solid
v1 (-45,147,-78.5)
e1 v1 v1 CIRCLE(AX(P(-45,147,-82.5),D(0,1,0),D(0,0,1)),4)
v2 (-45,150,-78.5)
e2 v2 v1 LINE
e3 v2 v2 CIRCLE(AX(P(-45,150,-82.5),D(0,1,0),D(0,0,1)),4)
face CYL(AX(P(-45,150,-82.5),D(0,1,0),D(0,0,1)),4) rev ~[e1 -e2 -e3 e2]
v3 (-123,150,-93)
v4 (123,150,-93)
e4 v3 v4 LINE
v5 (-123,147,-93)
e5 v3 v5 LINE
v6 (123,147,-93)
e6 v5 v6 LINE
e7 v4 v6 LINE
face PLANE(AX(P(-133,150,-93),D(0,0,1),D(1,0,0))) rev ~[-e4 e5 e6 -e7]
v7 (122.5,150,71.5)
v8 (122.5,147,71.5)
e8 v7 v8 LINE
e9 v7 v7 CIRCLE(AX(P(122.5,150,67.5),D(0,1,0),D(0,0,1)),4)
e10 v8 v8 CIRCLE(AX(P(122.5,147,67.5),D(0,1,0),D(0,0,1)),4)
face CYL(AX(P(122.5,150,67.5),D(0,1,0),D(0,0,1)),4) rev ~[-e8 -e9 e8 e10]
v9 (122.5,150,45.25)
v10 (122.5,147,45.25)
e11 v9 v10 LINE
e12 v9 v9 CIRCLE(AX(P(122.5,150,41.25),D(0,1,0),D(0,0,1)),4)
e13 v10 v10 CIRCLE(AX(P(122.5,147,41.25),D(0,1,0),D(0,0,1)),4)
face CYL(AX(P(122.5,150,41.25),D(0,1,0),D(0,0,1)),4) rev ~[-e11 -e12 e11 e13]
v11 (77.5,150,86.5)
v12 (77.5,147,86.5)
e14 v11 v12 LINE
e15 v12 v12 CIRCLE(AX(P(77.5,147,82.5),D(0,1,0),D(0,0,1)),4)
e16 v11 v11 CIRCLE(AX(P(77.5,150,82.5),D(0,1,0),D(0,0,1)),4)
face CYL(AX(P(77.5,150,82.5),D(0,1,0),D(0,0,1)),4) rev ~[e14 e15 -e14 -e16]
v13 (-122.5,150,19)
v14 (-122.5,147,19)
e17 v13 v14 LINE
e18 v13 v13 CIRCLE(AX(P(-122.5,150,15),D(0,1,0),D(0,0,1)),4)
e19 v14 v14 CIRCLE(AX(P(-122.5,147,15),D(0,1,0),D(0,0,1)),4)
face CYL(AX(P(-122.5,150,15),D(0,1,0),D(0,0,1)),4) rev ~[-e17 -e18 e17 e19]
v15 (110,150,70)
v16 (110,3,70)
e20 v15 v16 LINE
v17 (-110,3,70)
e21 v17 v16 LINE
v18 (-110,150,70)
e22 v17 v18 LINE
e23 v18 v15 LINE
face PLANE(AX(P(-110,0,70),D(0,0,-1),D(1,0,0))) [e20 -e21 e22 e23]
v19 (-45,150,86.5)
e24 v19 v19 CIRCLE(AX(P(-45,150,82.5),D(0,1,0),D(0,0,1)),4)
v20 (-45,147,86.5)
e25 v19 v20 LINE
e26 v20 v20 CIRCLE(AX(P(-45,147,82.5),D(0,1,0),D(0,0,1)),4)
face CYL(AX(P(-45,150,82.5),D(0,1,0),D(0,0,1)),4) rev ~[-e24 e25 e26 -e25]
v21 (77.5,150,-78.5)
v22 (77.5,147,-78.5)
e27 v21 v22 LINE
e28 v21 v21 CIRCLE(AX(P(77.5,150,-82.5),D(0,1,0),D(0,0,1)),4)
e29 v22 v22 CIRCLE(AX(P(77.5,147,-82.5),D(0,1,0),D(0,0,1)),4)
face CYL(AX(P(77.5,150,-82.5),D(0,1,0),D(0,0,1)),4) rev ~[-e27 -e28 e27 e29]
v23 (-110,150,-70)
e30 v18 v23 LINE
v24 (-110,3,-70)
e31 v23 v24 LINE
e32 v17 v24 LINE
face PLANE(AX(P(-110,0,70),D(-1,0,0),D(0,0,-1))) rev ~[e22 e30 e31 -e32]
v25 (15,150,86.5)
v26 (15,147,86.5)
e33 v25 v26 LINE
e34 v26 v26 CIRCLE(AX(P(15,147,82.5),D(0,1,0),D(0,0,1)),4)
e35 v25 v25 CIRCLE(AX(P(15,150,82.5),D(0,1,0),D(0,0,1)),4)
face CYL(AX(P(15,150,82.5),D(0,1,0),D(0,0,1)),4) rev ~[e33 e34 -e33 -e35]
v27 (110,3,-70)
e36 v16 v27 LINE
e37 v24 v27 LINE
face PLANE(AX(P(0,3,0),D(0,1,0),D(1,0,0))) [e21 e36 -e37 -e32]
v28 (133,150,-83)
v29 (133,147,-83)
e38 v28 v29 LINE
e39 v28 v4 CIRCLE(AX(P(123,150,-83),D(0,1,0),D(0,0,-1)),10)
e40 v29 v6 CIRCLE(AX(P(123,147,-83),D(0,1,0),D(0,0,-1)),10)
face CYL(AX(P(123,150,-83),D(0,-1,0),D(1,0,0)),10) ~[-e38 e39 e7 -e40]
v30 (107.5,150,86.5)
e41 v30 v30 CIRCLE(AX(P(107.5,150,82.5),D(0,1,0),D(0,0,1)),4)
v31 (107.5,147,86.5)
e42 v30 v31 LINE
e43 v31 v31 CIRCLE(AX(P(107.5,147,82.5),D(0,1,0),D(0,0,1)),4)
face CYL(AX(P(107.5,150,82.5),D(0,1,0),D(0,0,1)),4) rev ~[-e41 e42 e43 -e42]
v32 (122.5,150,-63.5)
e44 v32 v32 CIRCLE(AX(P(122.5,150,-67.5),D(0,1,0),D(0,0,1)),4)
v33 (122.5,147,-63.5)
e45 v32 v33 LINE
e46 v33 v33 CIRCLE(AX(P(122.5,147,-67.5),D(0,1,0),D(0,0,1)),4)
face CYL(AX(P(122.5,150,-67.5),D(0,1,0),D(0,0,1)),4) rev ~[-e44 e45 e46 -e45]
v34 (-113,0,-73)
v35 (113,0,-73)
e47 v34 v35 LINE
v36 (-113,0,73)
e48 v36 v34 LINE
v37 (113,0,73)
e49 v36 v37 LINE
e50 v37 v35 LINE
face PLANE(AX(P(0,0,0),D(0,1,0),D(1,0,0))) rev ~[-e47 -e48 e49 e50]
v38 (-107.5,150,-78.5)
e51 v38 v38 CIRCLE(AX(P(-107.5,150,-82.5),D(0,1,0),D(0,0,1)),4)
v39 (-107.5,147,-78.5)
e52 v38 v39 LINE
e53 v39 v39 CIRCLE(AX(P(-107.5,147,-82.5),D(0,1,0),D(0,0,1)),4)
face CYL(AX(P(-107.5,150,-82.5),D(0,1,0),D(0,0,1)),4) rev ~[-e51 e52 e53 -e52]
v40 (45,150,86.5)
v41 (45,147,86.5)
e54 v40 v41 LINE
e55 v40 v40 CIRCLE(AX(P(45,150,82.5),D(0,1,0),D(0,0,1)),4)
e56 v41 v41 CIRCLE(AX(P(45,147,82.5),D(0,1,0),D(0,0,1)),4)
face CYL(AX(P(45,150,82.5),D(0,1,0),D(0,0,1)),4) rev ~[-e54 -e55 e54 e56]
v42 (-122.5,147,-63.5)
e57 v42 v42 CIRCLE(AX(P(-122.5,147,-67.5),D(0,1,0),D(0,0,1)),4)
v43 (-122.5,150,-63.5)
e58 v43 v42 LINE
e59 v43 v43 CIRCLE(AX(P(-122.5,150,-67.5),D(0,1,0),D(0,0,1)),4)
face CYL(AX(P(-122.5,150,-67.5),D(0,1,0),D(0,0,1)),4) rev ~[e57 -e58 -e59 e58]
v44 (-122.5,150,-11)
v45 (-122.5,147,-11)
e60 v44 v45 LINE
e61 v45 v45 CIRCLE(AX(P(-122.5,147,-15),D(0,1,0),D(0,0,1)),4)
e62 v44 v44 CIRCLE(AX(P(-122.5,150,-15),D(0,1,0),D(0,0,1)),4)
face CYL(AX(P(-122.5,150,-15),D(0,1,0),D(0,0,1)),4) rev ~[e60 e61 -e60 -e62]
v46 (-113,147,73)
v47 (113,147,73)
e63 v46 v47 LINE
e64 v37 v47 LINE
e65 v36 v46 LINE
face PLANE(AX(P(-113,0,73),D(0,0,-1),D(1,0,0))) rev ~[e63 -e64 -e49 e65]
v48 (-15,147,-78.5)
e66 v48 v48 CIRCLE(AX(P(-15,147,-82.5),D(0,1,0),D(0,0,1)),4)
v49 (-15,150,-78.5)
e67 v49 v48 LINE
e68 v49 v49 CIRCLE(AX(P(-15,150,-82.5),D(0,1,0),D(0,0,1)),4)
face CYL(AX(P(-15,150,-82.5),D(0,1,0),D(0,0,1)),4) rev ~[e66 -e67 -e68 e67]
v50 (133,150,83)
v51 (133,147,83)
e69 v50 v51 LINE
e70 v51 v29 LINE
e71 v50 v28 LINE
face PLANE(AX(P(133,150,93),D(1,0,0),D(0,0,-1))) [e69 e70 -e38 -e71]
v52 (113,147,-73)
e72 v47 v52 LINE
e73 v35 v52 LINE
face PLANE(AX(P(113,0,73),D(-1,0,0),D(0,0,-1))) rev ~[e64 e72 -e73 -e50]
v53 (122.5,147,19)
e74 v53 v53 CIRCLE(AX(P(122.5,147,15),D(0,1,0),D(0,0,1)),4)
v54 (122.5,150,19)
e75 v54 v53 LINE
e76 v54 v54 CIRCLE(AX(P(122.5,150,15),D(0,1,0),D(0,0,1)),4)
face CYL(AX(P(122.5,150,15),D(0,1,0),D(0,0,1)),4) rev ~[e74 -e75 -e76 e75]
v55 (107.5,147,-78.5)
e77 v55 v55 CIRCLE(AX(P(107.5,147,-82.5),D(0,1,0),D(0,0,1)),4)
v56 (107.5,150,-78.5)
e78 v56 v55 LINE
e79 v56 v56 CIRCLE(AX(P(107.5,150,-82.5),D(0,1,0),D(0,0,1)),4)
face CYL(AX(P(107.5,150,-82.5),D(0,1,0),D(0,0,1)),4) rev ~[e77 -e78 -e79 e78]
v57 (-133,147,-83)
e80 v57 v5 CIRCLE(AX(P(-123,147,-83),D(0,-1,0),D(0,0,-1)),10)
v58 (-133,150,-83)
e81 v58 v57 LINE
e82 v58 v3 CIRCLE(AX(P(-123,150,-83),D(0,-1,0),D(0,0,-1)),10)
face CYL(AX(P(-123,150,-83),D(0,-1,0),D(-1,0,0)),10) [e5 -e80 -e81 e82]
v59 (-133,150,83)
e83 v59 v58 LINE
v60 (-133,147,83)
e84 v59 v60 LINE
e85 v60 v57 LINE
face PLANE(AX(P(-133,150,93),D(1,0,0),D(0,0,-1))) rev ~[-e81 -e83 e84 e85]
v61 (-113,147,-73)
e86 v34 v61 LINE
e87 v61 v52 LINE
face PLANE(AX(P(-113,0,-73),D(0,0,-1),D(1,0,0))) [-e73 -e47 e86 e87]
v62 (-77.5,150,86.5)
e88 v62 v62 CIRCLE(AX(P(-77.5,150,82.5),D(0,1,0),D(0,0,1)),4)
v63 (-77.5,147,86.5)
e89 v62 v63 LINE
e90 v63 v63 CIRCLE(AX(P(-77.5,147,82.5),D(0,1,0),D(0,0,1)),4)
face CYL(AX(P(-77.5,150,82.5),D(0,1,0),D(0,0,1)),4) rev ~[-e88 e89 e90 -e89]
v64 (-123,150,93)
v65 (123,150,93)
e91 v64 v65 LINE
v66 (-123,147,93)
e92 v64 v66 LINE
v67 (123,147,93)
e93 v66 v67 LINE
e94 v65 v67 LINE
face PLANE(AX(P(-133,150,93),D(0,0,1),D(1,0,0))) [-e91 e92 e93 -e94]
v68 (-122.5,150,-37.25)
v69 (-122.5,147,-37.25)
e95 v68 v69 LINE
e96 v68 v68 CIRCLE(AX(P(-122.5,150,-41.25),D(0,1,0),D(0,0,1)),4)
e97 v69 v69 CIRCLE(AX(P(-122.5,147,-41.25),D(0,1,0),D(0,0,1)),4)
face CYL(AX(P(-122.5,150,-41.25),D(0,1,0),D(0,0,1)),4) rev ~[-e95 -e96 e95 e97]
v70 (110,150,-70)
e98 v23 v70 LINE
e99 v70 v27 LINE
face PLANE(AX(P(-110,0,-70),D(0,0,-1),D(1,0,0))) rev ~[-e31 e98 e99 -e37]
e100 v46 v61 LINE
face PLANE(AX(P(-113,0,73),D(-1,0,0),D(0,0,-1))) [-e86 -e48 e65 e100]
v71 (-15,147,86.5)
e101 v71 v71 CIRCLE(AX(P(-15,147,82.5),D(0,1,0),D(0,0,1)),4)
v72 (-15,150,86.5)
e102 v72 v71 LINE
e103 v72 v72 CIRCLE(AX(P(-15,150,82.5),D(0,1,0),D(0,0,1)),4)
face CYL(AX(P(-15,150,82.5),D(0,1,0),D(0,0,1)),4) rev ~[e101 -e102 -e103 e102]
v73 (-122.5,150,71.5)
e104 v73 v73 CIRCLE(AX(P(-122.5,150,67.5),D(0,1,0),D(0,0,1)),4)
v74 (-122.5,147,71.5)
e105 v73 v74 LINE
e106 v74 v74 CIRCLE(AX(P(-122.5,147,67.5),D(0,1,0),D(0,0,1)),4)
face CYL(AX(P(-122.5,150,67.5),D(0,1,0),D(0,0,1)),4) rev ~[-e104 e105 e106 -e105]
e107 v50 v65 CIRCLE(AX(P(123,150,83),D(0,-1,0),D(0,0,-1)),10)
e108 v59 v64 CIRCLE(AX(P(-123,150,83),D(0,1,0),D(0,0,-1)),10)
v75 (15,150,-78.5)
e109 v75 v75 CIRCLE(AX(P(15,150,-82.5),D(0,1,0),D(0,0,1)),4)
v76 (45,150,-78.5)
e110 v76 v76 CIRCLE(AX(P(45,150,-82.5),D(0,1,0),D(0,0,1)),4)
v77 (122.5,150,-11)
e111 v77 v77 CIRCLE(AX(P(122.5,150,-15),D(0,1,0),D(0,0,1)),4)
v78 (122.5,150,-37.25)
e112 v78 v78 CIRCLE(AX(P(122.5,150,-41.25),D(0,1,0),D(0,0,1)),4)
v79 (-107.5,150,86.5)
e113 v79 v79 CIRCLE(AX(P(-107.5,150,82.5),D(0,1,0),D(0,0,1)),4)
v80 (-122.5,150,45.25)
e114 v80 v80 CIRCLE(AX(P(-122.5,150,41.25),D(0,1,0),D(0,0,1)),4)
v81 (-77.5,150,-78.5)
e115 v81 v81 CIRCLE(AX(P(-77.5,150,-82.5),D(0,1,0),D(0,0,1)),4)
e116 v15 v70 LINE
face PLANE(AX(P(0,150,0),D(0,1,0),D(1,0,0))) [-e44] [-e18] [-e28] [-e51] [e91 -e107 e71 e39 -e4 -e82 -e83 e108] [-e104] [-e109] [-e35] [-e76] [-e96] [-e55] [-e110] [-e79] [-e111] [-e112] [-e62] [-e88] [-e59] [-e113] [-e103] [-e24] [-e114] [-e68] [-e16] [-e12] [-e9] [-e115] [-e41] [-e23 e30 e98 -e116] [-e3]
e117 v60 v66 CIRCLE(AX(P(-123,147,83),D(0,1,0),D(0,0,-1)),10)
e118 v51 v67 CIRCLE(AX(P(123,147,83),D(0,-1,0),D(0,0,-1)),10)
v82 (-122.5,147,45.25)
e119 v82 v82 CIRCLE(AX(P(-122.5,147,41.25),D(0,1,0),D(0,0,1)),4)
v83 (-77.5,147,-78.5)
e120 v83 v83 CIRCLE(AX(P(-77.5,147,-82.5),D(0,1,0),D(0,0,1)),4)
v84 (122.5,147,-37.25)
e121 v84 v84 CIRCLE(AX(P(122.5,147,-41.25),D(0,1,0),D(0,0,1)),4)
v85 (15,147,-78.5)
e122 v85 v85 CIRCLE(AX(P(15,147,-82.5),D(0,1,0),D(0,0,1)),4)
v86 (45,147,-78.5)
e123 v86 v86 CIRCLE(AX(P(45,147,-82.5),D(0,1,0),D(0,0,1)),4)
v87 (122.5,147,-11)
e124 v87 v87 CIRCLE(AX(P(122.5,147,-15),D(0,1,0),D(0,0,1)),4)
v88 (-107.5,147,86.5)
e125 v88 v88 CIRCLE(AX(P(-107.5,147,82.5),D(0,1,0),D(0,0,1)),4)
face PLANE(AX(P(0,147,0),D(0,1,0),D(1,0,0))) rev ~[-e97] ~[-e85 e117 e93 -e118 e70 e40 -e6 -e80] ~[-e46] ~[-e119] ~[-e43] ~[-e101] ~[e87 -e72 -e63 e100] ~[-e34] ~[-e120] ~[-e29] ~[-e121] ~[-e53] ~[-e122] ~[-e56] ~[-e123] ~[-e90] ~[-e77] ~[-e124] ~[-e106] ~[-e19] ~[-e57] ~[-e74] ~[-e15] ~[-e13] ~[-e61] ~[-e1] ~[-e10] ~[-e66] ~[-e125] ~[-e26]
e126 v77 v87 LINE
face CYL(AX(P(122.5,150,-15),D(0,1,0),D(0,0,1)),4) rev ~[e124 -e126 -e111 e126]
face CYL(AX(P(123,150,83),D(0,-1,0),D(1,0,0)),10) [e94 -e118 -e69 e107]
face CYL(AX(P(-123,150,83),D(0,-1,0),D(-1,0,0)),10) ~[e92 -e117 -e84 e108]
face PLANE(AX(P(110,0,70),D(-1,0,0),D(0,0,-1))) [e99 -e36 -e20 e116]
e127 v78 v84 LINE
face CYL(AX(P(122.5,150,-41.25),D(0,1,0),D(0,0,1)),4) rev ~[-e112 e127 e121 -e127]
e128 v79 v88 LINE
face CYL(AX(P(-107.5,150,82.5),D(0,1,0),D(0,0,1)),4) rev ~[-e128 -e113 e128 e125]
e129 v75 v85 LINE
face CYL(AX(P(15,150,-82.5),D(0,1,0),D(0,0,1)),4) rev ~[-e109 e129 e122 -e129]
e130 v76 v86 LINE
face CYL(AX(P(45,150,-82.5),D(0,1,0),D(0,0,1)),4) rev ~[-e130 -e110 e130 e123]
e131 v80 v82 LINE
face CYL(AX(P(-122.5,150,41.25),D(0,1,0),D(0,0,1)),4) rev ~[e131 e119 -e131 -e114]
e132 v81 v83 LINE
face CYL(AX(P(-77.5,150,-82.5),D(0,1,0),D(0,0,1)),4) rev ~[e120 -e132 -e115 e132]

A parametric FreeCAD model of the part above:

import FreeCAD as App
import Part
import Sketcher
from FreeCAD import Vector
Q = App.Units.Quantity


def edges_at(feature, points):
    """Names of the edges that pass closest to the given points."""
    edges = feature.Shape.Edges
    near = lambda p: min(range(len(edges)), key=lambda i: edges[i].distToShape(Part.Vertex(*p))[0])
    return sorted({f"Edge{near(p) + 1}" for p in points})

doc = App.newDocument("Part")
body = doc.addObject("PartDesign::Body", "Body")

sketch1 = body.newObject("Sketcher::SketchObject", "Sketch")
sketch1.AttachmentSupport = (doc.getObject("XZ_Plane"), [""])
sketch1.MapMode = "FlatFace"
sketch1.addGeometry([
    Part.LineSegment(Vector(-113, -73, 0), Vector(-113, 73, 0)),
    Part.LineSegment(Vector(-113, 73, 0), Vector(113, 73, 0)),
    Part.LineSegment(Vector(113, 73, 0), Vector(113, -73, 0)),
    Part.LineSegment(Vector(113, -73, 0), Vector(-113, -73, 0)),
    Part.LineSegment(Vector(110, 70, 0), Vector(-110, 70, 0)),
    Part.LineSegment(Vector(-110, 70, 0), Vector(-110, -70, 0)),
    Part.LineSegment(Vector(-110, -70, 0), Vector(110, -70, 0)),
    Part.LineSegment(Vector(110, -70, 0), Vector(110, 70, 0)),
], False)
sketch1.addConstraint([
    Sketcher.Constraint("Coincident", 0, 2, 1, 1),
    Sketcher.Constraint("Coincident", 1, 2, 2, 1),
    Sketcher.Constraint("Coincident", 2, 2, 3, 1),
    Sketcher.Constraint("Coincident", 3, 2, 0, 1),
    Sketcher.Constraint("Coincident", 4, 2, 5, 1),
    Sketcher.Constraint("Coincident", 5, 2, 6, 1),
    Sketcher.Constraint("Coincident", 6, 2, 7, 1),
    Sketcher.Constraint("Coincident", 7, 2, 4, 1),
    Sketcher.Constraint("Vertical", 0),
    Sketcher.Constraint("Horizontal", 1),
    Sketcher.Constraint("Vertical", 2),
    Sketcher.Constraint("Horizontal", 3),
    Sketcher.Constraint("Horizontal", 4),
    Sketcher.Constraint("Vertical", 5),
    Sketcher.Constraint("Horizontal", 6),
    Sketcher.Constraint("Vertical", 7),
    Sketcher.Constraint("Symmetric", 0, 2, 2, 2, -1, 1),
    Sketcher.Constraint("Symmetric", 4, 2, 6, 2, -1, 1),
    Sketcher.Constraint("DistanceX", 1, 1, 1, 2, Q("226 mm")),
    Sketcher.Constraint("DistanceX", 4, 2, 4, 1, Q("220 mm")),
    Sketcher.Constraint("DistanceY", 0, 1, 0, 2, Q("146 mm")),
    Sketcher.Constraint("DistanceY", 5, 2, 5, 1, Q("140 mm")),
])
pad1 = body.newObject("PartDesign::Pad", "Pad")
pad1.Profile = sketch1
pad1.Length = 150
pad1.Reversed = True

sketch2 = body.newObject("Sketcher::SketchObject", "Sketch001")
sketch2.AttachmentSupport = (doc.getObject("XZ_Plane"), [""])
sketch2.MapMode = "FlatFace"
sketch2.addGeometry([
    Part.LineSegment(Vector(-110, -70, 0), Vector(-110, 70, 0)),
    Part.LineSegment(Vector(-110, 70, 0), Vector(110, 70, 0)),
    Part.LineSegment(Vector(110, 70, 0), Vector(110, -70, 0)),
    Part.LineSegment(Vector(110, -70, 0), Vector(-110, -70, 0)),
], False)
sketch2.addConstraint([
    Sketcher.Constraint("Coincident", 0, 2, 1, 1),
    Sketcher.Constraint("Coincident", 1, 2, 2, 1),
    Sketcher.Constraint("Coincident", 2, 2, 3, 1),
    Sketcher.Constraint("Coincident", 3, 2, 0, 1),
    Sketcher.Constraint("Vertical", 0),
    Sketcher.Constraint("Horizontal", 1),
    Sketcher.Constraint("Vertical", 2),
    Sketcher.Constraint("Horizontal", 3),
    Sketcher.Constraint("Symmetric", 0, 2, 2, 2, -1, 1),
    Sketcher.Constraint("DistanceX", 1, 1, 1, 2, Q("220 mm")),
    Sketcher.Constraint("DistanceY", 0, 1, 0, 2, Q("140 mm")),
])
pad2 = body.newObject("PartDesign::Pad", "Pad001")
pad2.Profile = sketch2
pad2.Length = 3
pad2.Reversed = True

sketch3 = body.newObject("Sketcher::SketchObject", "Sketch002")
sketch3.AttachmentSupport = (doc.getObject("XZ_Plane"), [""])
sketch3.MapMode = "FlatFace"
sketch3.AttachmentOffset = App.Placement(Vector(0, 0, -150), App.Rotation())
sketch3.addGeometry([
    Part.LineSegment(Vector(-133, -93, 0), Vector(-133, 93, 0)),
    Part.LineSegment(Vector(-133, 93, 0), Vector(133, 93, 0)),
    Part.LineSegment(Vector(133, 93, 0), Vector(133, -93, 0)),
    Part.LineSegment(Vector(133, -93, 0), Vector(-133, -93, 0)),
    Part.LineSegment(Vector(110, 70, 0), Vector(-110, 70, 0)),
    Part.LineSegment(Vector(-110, 70, 0), Vector(-110, -70, 0)),
    Part.LineSegment(Vector(-110, -70, 0), Vector(110, -70, 0)),
    Part.LineSegment(Vector(110, -70, 0), Vector(110, 70, 0)),
], False)
sketch3.addConstraint([
    Sketcher.Constraint("Coincident", 0, 2, 1, 1),
    Sketcher.Constraint("Coincident", 1, 2, 2, 1),
    Sketcher.Constraint("Coincident", 2, 2, 3, 1),
    Sketcher.Constraint("Coincident", 3, 2, 0, 1),
    Sketcher.Constraint("Coincident", 4, 2, 5, 1),
    Sketcher.Constraint("Coincident", 5, 2, 6, 1),
    Sketcher.Constraint("Coincident", 6, 2, 7, 1),
    Sketcher.Constraint("Coincident", 7, 2, 4, 1),
    Sketcher.Constraint("Vertical", 0),
    Sketcher.Constraint("Horizontal", 1),
    Sketcher.Constraint("Vertical", 2),
    Sketcher.Constraint("Horizontal", 3),
    Sketcher.Constraint("Horizontal", 4),
    Sketcher.Constraint("Vertical", 5),
    Sketcher.Constraint("Horizontal", 6),
    Sketcher.Constraint("Vertical", 7),
    Sketcher.Constraint("Symmetric", 0, 2, 2, 2, -1, 1),
    Sketcher.Constraint("Symmetric", 4, 2, 6, 2, -1, 1),
    Sketcher.Constraint("DistanceX", 1, 1, 1, 2, Q("266 mm")),
    Sketcher.Constraint("DistanceX", 4, 2, 4, 1, Q("220 mm")),
    Sketcher.Constraint("DistanceY", 0, 1, 0, 2, Q("186 mm")),
    Sketcher.Constraint("DistanceY", 5, 2, 5, 1, Q("140 mm")),
])
pad3 = body.newObject("PartDesign::Pad", "Pad002")
pad3.Profile = sketch3
pad3.Length = 3
doc.recompute()

fillet = body.newObject("PartDesign::Fillet", "Fillet")
fillet.Base = (pad3, edges_at(pad3, [
    (-133, 148.5, 93),
    (-133, 148.5, -93),
    (133, 148.5, -93),
    (133, 148.5, 93),
]))
fillet.Radius = 10

sketch4 = body.newObject("Sketcher::SketchObject", "Sketch003")
sketch4.AttachmentSupport = (doc.getObject("XZ_Plane"), [""])
sketch4.MapMode = "FlatFace"
sketch4.AttachmentOffset = App.Placement(Vector(0, 0, -150), App.Rotation())
sketch4.addGeometry([
    Part.Circle(Vector(-122.5, 15, 0), Vector(0, 0, 1), 4),
    Part.Circle(Vector(-122.5, 41.2, 0), Vector(0, 0, 1), 4),
    Part.Circle(Vector(-122.5, 67.5, 0), Vector(0, 0, 1), 4),
    Part.Circle(Vector(-107.5, 82.5, 0), Vector(0, 0, 1), 4),
    Part.Circle(Vector(-77.5, 82.5, 0), Vector(0, 0, 1), 4),
    Part.Circle(Vector(-45, 82.5, 0), Vector(0, 0, 1), 4),
    Part.Circle(Vector(-15, 82.5, 0), Vector(0, 0, 1), 4),
    Part.Circle(Vector(-45, -82.5, 0), Vector(0, 0, 1), 4),
    Part.Circle(Vector(-15, -82.5, 0), Vector(0, 0, 1), 4),
    Part.Circle(Vector(-77.5, -82.5, 0), Vector(0, 0, 1), 4),
    Part.Circle(Vector(-107.5, -82.5, 0), Vector(0, 0, 1), 4),
    Part.Circle(Vector(-122.5, -67.5, 0), Vector(0, 0, 1), 4),
    Part.Circle(Vector(-122.5, -41.2, 0), Vector(0, 0, 1), 4),
    Part.Circle(Vector(-122.5, -15, 0), Vector(0, 0, 1), 4),
    Part.Circle(Vector(15, 82.5, 0), Vector(0, 0, 1), 4),
    Part.Circle(Vector(45, 82.5, 0), Vector(0, 0, 1), 4),
    Part.Circle(Vector(107.5, 82.5, 0), Vector(0, 0, 1), 4),
    Part.Circle(Vector(122.5, 67.5, 0), Vector(0, 0, 1), 4),
    Part.Circle(Vector(122.5, 41.2, 0), Vector(0, 0, 1), 4),
    Part.Circle(Vector(122.5, 15, 0), Vector(0, 0, 1), 4),
    Part.Circle(Vector(122.5, -15, 0), Vector(0, 0, 1), 4),
    Part.Circle(Vector(122.5, -41.2, 0), Vector(0, 0, 1), 4),
    Part.Circle(Vector(122.5, -67.5, 0), Vector(0, 0, 1), 4),
    Part.Circle(Vector(107.5, -82.5, 0), Vector(0, 0, 1), 4),
    Part.Circle(Vector(77.5, -82.5, 0), Vector(0, 0, 1), 4),
    Part.Circle(Vector(45, -82.5, 0), Vector(0, 0, 1), 4),
    Part.Circle(Vector(15, -82.5, 0), Vector(0, 0, 1), 4),
    Part.Circle(Vector(77.5, 82.5, 0), Vector(0, 0, 1), 4),
], False)
sketch4.addConstraint([
    Sketcher.Constraint("Equal", 0, 1),
    Sketcher.Constraint("Equal", 1, 2),
    Sketcher.Constraint("Equal", 2, 3),
    Sketcher.Constraint("Equal", 3, 4),
    Sketcher.Constraint("Equal", 4, 5),
    Sketcher.Constraint("Equal", 5, 6),
    Sketcher.Constraint("Equal", 6, 7),
    Sketcher.Constraint("Equal", 7, 8),
    Sketcher.Constraint("Equal", 8, 9),
    Sketcher.Constraint("Equal", 9, 10),
    Sketcher.Constraint("Equal", 10, 11),
    Sketcher.Constraint("Equal", 11, 12),
    Sketcher.Constraint("Equal", 12, 13),
    Sketcher.Constraint("Equal", 13, 14),
    Sketcher.Constraint("Equal", 14, 15),
    Sketcher.Constraint("Equal", 15, 16),
    Sketcher.Constraint("Equal", 16, 17),
    Sketcher.Constraint("Equal", 17, 18),
    Sketcher.Constraint("Equal", 18, 19),
    Sketcher.Constraint("Equal", 19, 20),
    Sketcher.Constraint("Equal", 20, 21),
    Sketcher.Constraint("Equal", 21, 22),
    Sketcher.Constraint("Equal", 22, 23),
    Sketcher.Constraint("Equal", 23, 24),
    Sketcher.Constraint("Equal", 24, 25),
    Sketcher.Constraint("Equal", 25, 26),
    Sketcher.Constraint("Equal", 26, 27),
    Sketcher.Constraint("Symmetric", 8, 3, 14, 3, -1, 1),
    Sketcher.Constraint("Symmetric", 7, 3, 15, 3, -1, 1),
    Sketcher.Constraint("Symmetric", 10, 3, 16, 3, -1, 1),
    Sketcher.Constraint("Symmetric", 11, 3, 17, 3, -1, 1),
    Sketcher.Constraint("Symmetric", 12, 3, 18, 3, -1, 1),
    Sketcher.Constraint("Symmetric", 13, 3, 19, 3, -1, 1),
    Sketcher.Constraint("Symmetric", 0, 3, 20, 3, -1, 1),
    Sketcher.Constraint("Symmetric", 1, 3, 21, 3, -1, 1),
    Sketcher.Constraint("Symmetric", 2, 3, 22, 3, -1, 1),
    Sketcher.Constraint("Symmetric", 3, 3, 23, 3, -1, 1),
    Sketcher.Constraint("Symmetric", 4, 3, 24, 3, -1, 1),
    Sketcher.Constraint("Symmetric", 5, 3, 25, 3, -1, 1),
    Sketcher.Constraint("Symmetric", 6, 3, 26, 3, -1, 1),
    Sketcher.Constraint("Symmetric", 9, 3, 27, 3, -1, 1),
    Sketcher.Constraint("Symmetric", 6, 3, 14, 3, -2),
    Sketcher.Constraint("Symmetric", 5, 3, 15, 3, -2),
    Sketcher.Constraint("Symmetric", 3, 3, 16, 3, -2),
    Sketcher.Constraint("Symmetric", 2, 3, 17, 3, -2),
    Sketcher.Constraint("Symmetric", 1, 3, 18, 3, -2),
    Sketcher.Constraint("Symmetric", 0, 3, 19, 3, -2),
    Sketcher.Constraint("Symmetric", 9, 3, 24, 3, -2),
    Sketcher.Constraint("Horizontal", 3, 3, 4, 3),
    Sketcher.Constraint("Horizontal", 4, 3, 5, 3),
    Sketcher.Constraint("Horizontal", 5, 3, 6, 3),
    Sketcher.Constraint("Vertical", 0, 3, 1, 3),
    Sketcher.Constraint("Vertical", 1, 3, 2, 3),
    Sketcher.Constraint("Diameter", 0, Q("8 mm")),
    Sketcher.Constraint("DistanceY", -1, 1, 0, 3, Q("15 mm")),
    Sketcher.Constraint("DistanceX", 5, 3, -1, 1, Q("45 mm")),
    Sketcher.Constraint("DistanceX", 6, 3, -1, 1, Q("15 mm")),
    Sketcher.Constraint("DistanceX", 2, 3, 3, 3, Q("15 mm")),
    Sketcher.Constraint("DistanceY", 2, 3, 3, 3, Q("15 mm")),
    Sketcher.Constraint("DistanceX", 3, 3, 4, 3, Q("30 mm")),
    Sketcher.Constraint("DistanceY", 7, 3, 5, 3, Q("165 mm")),
    Sketcher.Constraint("DistanceX", 4, 3, 16, 3, Q("185 mm")),
    Sketcher.Constraint("DistanceY", 12, 3, 1, 3, Q("82.5 mm")),
])
pocket1 = body.newObject("PartDesign::Pocket", "Pocket")
pocket1.Profile = sketch4
pocket1.Type = "ThroughAll"
pocket1.Reversed = True

doc.recompute()
